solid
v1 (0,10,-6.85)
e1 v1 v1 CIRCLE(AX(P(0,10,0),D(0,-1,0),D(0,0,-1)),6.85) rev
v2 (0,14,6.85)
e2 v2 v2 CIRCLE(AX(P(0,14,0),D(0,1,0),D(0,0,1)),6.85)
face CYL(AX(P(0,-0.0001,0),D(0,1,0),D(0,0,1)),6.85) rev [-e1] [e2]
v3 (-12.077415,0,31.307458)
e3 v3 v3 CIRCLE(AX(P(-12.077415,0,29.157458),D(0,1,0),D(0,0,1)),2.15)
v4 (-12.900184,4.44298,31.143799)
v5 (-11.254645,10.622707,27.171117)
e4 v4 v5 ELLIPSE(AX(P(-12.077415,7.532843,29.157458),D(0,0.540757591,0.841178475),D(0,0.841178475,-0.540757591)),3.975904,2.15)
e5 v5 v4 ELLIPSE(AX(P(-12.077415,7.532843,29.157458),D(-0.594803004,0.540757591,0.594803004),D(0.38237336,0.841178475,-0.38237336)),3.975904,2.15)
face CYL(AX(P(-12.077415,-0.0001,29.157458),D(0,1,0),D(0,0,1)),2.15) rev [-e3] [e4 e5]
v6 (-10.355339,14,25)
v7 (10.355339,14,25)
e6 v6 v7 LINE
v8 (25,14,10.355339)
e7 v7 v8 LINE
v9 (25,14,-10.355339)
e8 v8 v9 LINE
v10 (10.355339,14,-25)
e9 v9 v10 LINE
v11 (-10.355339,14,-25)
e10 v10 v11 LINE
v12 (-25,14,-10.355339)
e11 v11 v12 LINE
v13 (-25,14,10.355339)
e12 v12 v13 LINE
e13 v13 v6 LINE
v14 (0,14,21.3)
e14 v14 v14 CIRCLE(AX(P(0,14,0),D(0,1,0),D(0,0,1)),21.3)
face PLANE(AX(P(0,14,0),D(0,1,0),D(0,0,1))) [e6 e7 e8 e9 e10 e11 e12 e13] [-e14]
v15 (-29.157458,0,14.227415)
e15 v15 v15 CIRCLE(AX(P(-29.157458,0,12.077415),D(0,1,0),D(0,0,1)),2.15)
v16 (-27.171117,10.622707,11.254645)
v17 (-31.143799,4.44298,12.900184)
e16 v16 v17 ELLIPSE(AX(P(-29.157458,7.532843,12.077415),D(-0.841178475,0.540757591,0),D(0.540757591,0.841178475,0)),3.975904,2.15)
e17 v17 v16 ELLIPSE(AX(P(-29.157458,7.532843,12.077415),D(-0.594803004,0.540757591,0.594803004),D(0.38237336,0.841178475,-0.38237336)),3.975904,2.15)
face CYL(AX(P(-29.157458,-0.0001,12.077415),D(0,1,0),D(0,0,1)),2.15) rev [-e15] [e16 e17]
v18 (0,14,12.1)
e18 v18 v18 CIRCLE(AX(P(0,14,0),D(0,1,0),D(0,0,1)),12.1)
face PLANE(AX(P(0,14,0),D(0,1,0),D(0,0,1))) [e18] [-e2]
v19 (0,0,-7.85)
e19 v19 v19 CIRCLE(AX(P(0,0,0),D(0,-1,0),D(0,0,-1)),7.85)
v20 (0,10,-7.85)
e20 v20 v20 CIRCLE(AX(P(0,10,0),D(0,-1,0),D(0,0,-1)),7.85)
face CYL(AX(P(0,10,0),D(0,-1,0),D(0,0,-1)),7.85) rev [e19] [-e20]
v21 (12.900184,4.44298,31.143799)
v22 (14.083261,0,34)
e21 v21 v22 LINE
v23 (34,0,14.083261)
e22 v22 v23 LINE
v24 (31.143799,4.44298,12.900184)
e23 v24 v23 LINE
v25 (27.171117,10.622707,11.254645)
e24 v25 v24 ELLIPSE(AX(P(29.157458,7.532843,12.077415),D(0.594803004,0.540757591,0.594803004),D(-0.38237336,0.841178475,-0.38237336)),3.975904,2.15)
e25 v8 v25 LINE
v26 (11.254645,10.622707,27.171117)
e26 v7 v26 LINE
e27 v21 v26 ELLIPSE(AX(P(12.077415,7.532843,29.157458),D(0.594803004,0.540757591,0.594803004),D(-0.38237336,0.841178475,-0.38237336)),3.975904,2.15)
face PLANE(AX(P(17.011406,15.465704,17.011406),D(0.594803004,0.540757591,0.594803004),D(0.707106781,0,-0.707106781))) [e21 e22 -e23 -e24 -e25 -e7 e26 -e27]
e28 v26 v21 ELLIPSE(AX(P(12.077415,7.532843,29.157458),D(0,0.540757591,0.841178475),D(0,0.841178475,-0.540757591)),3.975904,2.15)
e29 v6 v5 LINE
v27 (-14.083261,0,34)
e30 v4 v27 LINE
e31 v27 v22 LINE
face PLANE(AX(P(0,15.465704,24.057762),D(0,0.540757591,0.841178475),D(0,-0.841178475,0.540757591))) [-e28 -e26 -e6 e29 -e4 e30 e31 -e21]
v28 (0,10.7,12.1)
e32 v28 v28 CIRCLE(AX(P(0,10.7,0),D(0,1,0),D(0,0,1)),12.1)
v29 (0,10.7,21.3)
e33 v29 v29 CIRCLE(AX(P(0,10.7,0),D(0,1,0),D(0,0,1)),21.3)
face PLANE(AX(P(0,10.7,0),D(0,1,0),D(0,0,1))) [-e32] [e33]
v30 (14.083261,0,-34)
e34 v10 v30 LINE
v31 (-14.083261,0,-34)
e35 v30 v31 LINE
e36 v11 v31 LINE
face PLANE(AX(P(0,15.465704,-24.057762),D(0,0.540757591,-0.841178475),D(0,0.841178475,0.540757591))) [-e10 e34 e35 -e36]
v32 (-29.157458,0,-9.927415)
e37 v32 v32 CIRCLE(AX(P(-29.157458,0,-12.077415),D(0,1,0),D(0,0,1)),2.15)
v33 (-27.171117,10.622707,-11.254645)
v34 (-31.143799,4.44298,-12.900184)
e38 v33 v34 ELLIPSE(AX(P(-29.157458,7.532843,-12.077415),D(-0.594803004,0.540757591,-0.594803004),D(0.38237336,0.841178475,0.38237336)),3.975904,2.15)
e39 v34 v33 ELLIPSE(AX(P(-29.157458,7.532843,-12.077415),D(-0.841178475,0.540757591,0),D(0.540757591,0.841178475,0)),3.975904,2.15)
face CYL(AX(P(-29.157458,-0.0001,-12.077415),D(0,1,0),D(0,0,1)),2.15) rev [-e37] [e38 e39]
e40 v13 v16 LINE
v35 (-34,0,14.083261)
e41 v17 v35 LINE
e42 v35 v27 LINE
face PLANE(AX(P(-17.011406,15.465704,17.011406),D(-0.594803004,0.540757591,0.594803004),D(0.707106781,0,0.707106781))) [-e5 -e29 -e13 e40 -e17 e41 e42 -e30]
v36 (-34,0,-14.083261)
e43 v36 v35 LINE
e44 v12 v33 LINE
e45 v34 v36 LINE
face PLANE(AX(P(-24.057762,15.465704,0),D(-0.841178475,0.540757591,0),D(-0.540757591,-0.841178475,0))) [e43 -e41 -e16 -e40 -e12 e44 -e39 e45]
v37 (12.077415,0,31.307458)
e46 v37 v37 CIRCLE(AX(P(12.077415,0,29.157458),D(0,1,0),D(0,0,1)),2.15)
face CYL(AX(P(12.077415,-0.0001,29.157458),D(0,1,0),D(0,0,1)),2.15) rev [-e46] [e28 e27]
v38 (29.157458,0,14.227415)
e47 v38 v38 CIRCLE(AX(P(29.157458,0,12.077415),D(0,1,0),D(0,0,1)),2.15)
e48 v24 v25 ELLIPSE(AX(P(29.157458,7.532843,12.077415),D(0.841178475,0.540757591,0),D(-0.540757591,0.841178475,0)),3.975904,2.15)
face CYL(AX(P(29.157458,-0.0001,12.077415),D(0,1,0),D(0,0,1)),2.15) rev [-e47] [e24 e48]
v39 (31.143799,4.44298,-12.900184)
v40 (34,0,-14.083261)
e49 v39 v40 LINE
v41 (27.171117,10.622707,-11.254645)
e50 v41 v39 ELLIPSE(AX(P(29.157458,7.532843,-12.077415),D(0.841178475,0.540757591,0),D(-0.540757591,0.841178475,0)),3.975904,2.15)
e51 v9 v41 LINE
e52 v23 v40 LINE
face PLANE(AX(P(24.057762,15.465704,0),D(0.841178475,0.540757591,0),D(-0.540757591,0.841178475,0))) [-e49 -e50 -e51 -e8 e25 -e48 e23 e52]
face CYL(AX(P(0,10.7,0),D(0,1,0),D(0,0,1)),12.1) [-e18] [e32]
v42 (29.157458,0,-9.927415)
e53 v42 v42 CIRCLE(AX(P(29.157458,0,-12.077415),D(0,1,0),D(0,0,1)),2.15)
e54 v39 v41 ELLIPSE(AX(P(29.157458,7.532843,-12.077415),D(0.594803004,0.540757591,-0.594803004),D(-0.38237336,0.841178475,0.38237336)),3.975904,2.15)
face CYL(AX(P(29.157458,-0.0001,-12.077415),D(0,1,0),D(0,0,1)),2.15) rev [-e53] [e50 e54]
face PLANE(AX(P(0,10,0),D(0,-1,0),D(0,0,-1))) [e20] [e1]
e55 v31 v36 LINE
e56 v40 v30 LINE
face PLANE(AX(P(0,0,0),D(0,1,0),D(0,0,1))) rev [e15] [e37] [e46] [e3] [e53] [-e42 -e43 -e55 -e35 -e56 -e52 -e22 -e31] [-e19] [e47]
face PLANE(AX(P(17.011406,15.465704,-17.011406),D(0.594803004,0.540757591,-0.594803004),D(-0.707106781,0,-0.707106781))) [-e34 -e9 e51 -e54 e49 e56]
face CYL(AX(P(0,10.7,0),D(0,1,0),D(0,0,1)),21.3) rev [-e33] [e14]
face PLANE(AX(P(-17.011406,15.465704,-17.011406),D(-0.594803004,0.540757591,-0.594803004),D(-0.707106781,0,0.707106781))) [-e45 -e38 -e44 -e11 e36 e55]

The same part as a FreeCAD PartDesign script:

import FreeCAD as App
import Part
import Sketcher
from FreeCAD import Vector
Q = App.Units.Quantity


def add_polygon(sketch, points):
    """Adds a closed chain of lines whose ends are joined by coincident constraints."""
    first, n = sketch.GeometryCount, len(points)
    for a, b in zip(points, points[1:] + points[:1]):
        sketch.addGeometry(Part.LineSegment(App.Vector(*a, 0), App.Vector(*b, 0)), False)
    for i in range(n):
        sketch.addConstraint(Sketcher.Constraint("Coincident", first + i, 2, first + (i + 1) % n, 1))

doc = App.newDocument("Part")
params = doc.addObject("Spreadsheet::Sheet", "Params")
for row, (alias, value) in enumerate([
    ("sketch3_diameter", "13.7 mm"),
    ("sketch3_diameter2", "4.3 mm"),
    ("sketch4_diameter", "42.6 mm"),
    ("sketch4_diameter2", "24.2 mm"),
    ("pocket2_length", "3.3 mm"),
    ("sketch5_diameter", "15.7 mm"),
    ("pocket3_length", "10 mm"),
], start=1):
    params.set(f"A{row}", alias)
    params.set(f"B{row}", "=" + value)
    params.setAlias(f"B{row}", alias)

body = doc.addObject("PartDesign::Body", "Body")

sketch1 = doc.addObject("Sketcher::SketchObject", "Sketch")
body.addObject(sketch1)
sketch1.AttachmentSupport = (doc.XZ_Plane, [""])
sketch1.MapMode = "FlatFace"
sketch1.AttachmentOffset = App.Placement(Vector(0, 0, -14), App.Rotation())
add_polygon(sketch1, [(25, -10.355339), (10.355339, -25), (-10.355339, -25), (-25, -10.355339), (-25, 10.355339), (-10.355339, 25), (10.355339, 25), (25, 10.355339)])
sketch1.addConstraint([
    Sketcher.Constraint("Horizontal", 1),
    Sketcher.Constraint("Vertical", 3),
    Sketcher.Constraint("Horizontal", 5),
    Sketcher.Constraint("Vertical", 7),
    Sketcher.Constraint("Symmetric", 0, 2, 4, 2, -1, 1),
    Sketcher.Constraint("Symmetric", 2, 2, 6, 2, -1, 1),
    Sketcher.Constraint("Perpendicular", 0, 2),
    Sketcher.Constraint("Perpendicular", 2, 4),
    Sketcher.Constraint("Perpendicular", 4, 6),
    Sketcher.Constraint("Horizontal", 3, 2, 6, 2),
    Sketcher.Constraint("Vertical", 1, 2, 4, 2),
    Sketcher.Constraint("Equal", 5, 3),
    Sketcher.Constraint("DistanceY", 0, 2, -1, 1, Q("25 mm")),
    Sketcher.Constraint("DistanceX", 1, 2, 1, 1, Q("20.710678 mm")),
])

sketch2 = doc.addObject("Sketcher::SketchObject", "Sketch001")
body.addObject(sketch2)
sketch2.AttachmentSupport = (doc.XZ_Plane, [""])
sketch2.MapMode = "FlatFace"
add_polygon(sketch2, [(34, 14.083261), (34, -14.083261), (14.083261, -34), (-14.083261, -34), (-34, -14.083261), (-34, 14.083261), (-14.083261, 34), (14.083261, 34)])
sketch2.addConstraint([
    Sketcher.Constraint("Vertical", 0),
    Sketcher.Constraint("Horizontal", 2),
    Sketcher.Constraint("Vertical", 4),
    Sketcher.Constraint("Horizontal", 6),
    Sketcher.Constraint("Symmetric", 0, 2, 4, 2, -1, 1),
    Sketcher.Constraint("Symmetric", 1, 2, 5, 2, -1, 1),
    Sketcher.Constraint("Perpendicular", 1, 3),
    Sketcher.Constraint("Perpendicular", 5, 7),
    Sketcher.Constraint("Horizontal", 0, 2, 3, 2),
    Sketcher.Constraint("Horizontal", 4, 2, 7, 2),
    Sketcher.Constraint("Vertical", 2, 2, 5, 2),
    Sketcher.Constraint("Equal", 6, 0),
    Sketcher.Constraint("DistanceX", -1, 1, 0, 2, Q("34 mm")),
    Sketcher.Constraint("DistanceX", 2, 2, 2, 1, Q("28.166522 mm")),
])

additiveloft = doc.addObject("PartDesign::AdditiveLoft", "AdditiveLoft")
body.addObject(additiveloft)
additiveloft.Profile = sketch1
additiveloft.Sections = [sketch2]

sketch3 = doc.addObject("Sketcher::SketchObject", "Sketch002")
body.addObject(sketch3)
sketch3.AttachmentSupport = (doc.XZ_Plane, [""])
sketch3.MapMode = "FlatFace"
sketch3.AttachmentOffset = App.Placement(Vector(0, 0, -14), App.Rotation())
sketch3.addGeometry([
    Part.Circle(Vector(0, 0, 0), Vector(0, 0, 1), 6.85),
    Part.Circle(Vector(-29.157458, -12.077415, 0), Vector(0, 0, 1), 2.15),
    Part.Circle(Vector(29.157458, -12.077415, 0), Vector(0, 0, 1), 2.15),
    Part.Circle(Vector(29.157458, 12.077415, 0), Vector(0, 0, 1), 2.15),
    Part.Circle(Vector(12.077415, 29.157458, 0), Vector(0, 0, 1), 2.15),
    Part.Circle(Vector(-12.077415, 29.157458, 0), Vector(0, 0, 1), 2.15),
    Part.Circle(Vector(-29.157458, 12.077415, 0), Vector(0, 0, 1), 2.15),
], False)
sketch3.addConstraint([
    Sketcher.Constraint("Coincident", 0, 3, -1, 1),
    Sketcher.Constraint("Equal", 1, 2),
    Sketcher.Constraint("Equal", 2, 3),
    Sketcher.Constraint("Equal", 3, 4),
    Sketcher.Constraint("Equal", 4, 5),
    Sketcher.Constraint("Equal", 5, 6),
    Sketcher.Constraint("Symmetric", 1, 3, 3, 3, -1, 1),
    Sketcher.Constraint("Symmetric", 2, 3, 6, 3, -1, 1),
    Sketcher.Constraint("Symmetric", 1, 3, 2, 3, -2),
    Sketcher.Constraint("Symmetric", 4, 3, 5, 3, -2),
    Sketcher.Constraint("Diameter", 0, Q("13.7 mm")),
    Sketcher.Constraint("Diameter", 1, Q("4.3 mm")),
    Sketcher.Constraint("DistanceY", 2, 3, 3, 3, Q("24.154829 mm")),
    Sketcher.Constraint("DistanceX", 5, 3, 4, 3, Q("24.154829 mm")),
    Sketcher.Constraint("DistanceX", 1, 3, -1, 1, Q("29.157458 mm")),
    Sketcher.Constraint("DistanceY", -1, 1, 4, 3, Q("29.157458 mm")),
])
sketch3.setExpression("Constraints[10]", "Params.sketch3_diameter")
sketch3.setExpression("Constraints[11]", "Params.sketch3_diameter2")
pocket1 = doc.addObject("PartDesign::Pocket", "Pocket")
body.addObject(pocket1)
pocket1.Profile = sketch3
pocket1.Type = "ThroughAll"
pocket1.Reversed = True

sketch4 = doc.addObject("Sketcher::SketchObject", "Sketch003")
body.addObject(sketch4)
sketch4.AttachmentSupport = (doc.XZ_Plane, [""])
sketch4.MapMode = "FlatFace"
sketch4.AttachmentOffset = App.Placement(Vector(0, 0, -14), App.Rotation())
sketch4.addGeometry([
    Part.Circle(Vector(0, 0, 0), Vector(0, 0, 1), 21.3),
    Part.Circle(Vector(0, 0, 0), Vector(0, 0, 1), 12.1),
], False)
sketch4.addConstraint([
    Sketcher.Constraint("Coincident", 0, 3, -1, 1),
    Sketcher.Constraint("Coincident", 1, 3, -1, 1),
    Sketcher.Constraint("Diameter", 0, Q("42.6 mm")),
    Sketcher.Constraint("Diameter", 1, Q("24.2 mm")),
])
sketch4.setExpression("Constraints[2]", "Params.sketch4_diameter")
sketch4.setExpression("Constraints[3]", "Params.sketch4_diameter2")
pocket2 = doc.addObject("PartDesign::Pocket", "Pocket001")
body.addObject(pocket2)
pocket2.Profile = sketch4
pocket2.setExpression("Length", "Params.pocket2_length")
pocket2.Reversed = True

sketch5 = doc.addObject("Sketcher::SketchObject", "Sketch004")
body.addObject(sketch5)
sketch5.AttachmentSupport = (doc.XZ_Plane, [""])
sketch5.MapMode = "FlatFace"
sketch5.addGeometry(Part.Circle(Vector(0, 0, 0), Vector(0, 0, 1), 7.85), False)
sketch5.addConstraint([
    Sketcher.Constraint("Coincident", 0, 3, -1, 1),
    Sketcher.Constraint("Diameter", 0, Q("15.7 mm")),
])
sketch5.setExpression("Constraints[1]", "Params.sketch5_diameter")
pocket3 = doc.addObject("PartDesign::Pocket", "Pocket002")
body.addObject(pocket3)
pocket3.Profile = sketch5
pocket3.setExpression("Length", "Params.pocket3_length")

doc.recompute()
